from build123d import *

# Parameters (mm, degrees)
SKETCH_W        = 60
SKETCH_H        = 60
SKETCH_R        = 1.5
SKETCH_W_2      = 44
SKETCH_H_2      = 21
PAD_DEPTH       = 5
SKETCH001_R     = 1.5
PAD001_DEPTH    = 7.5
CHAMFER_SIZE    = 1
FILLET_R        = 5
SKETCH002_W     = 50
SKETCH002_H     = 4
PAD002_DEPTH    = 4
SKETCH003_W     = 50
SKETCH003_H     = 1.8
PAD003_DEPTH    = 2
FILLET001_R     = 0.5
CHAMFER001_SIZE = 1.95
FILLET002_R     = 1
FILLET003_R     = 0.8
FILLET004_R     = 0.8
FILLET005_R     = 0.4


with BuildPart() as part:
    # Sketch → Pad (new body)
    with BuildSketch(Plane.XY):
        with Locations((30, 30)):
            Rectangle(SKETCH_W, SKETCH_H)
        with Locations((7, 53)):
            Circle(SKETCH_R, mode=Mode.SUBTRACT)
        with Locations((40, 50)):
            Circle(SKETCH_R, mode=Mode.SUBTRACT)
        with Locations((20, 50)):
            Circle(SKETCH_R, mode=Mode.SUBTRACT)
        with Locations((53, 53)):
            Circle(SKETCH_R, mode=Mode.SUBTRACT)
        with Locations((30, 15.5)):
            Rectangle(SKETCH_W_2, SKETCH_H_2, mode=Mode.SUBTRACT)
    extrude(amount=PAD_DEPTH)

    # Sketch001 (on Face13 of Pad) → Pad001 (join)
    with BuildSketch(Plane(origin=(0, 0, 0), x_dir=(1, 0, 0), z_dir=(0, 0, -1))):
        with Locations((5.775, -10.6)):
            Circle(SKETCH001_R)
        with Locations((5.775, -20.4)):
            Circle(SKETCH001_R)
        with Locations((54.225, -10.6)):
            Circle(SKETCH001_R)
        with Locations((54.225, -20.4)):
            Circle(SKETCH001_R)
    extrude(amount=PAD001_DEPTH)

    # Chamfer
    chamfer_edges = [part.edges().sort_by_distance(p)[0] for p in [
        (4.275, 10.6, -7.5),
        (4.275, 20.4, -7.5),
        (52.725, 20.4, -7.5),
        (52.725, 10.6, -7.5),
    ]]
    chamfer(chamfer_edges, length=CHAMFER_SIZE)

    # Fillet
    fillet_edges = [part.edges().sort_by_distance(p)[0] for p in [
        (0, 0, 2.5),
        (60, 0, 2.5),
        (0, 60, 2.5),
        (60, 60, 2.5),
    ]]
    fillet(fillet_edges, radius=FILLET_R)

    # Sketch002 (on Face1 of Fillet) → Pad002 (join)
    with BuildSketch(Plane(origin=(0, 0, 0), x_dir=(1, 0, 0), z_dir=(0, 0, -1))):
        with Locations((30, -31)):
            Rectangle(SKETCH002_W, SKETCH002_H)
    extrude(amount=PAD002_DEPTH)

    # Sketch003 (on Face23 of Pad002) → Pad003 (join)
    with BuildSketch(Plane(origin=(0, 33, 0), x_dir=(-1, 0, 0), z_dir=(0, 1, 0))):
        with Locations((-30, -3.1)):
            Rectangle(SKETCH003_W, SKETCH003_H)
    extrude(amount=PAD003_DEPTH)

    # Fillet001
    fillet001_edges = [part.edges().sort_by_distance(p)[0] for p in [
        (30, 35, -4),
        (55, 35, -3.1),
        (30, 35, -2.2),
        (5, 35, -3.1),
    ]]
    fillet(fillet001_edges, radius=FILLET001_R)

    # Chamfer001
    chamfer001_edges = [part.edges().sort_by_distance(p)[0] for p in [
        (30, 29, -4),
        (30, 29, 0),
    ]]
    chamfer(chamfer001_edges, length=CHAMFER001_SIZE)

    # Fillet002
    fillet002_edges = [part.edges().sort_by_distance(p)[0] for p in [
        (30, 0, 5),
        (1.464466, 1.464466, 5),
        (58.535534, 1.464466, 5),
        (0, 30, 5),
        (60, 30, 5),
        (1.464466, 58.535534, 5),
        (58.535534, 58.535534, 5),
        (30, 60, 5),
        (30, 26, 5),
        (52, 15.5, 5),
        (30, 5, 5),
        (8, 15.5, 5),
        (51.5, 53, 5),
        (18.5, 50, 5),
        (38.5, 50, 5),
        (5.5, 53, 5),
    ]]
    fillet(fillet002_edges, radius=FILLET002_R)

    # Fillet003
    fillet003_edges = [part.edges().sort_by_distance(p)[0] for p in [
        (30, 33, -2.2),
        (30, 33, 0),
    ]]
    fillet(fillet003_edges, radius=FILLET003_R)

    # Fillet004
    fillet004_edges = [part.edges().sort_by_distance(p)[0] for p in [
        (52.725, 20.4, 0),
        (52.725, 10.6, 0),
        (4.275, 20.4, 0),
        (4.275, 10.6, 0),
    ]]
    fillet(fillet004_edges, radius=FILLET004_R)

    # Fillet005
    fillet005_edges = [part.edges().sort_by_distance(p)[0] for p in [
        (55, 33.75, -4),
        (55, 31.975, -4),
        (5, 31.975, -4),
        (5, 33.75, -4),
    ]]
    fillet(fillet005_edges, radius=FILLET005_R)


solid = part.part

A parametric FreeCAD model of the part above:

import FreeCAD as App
import Part
import Sketcher


def edges_at(feature, points):
    """Names of the edges that pass closest to the given points."""
    edges = feature.Shape.Edges
    near = lambda p: min(range(len(edges)), key=lambda i: edges[i].distToShape(Part.Vertex(*p))[0])
    return sorted({f"Edge{near(p) + 1}" for p in points})


def add_polygon(sketch, points):
    """Adds a closed chain of lines whose ends are joined by coincident constraints."""
    first, n = sketch.GeometryCount, len(points)
    for a, b in zip(points, points[1:] + points[:1]):
        sketch.addGeometry(Part.LineSegment(App.Vector(*a, 0), App.Vector(*b, 0)), False)
    for i in range(n):
        sketch.addConstraint(Sketcher.Constraint("Coincident", first + i, 2, first + (i + 1) % n, 1))

doc = App.newDocument("Part")
body = doc.addObject("PartDesign::Body", "Body")

# Sketch on XY plane
sketch1 = body.newObject("Sketcher::SketchObject", "Sketch")
sketch1.AttachmentSupport = (doc.getObject("XY_Plane"), [""])
sketch1.MapMode = "FlatFace"
add_polygon(sketch1, [(0, 60), (0, 0), (60, 0), (60, 60)])  # lines 0-3
add_polygon(sketch1, [(52, 5), (8, 5), (8, 26), (52, 26)])  # lines 4-7
sketch1.addGeometry(Part.Circle(App.Vector(7, 53, 0), App.Vector(0, 0, 1), 1.5), False)  # 8
sketch1.addGeometry(Part.Circle(App.Vector(20, 50, 0), App.Vector(0, 0, 1), 1.5), False)  # 9
sketch1.addGeometry(Part.Circle(App.Vector(40, 50, 0), App.Vector(0, 0, 1), 1.5), False)  # 10
sketch1.addGeometry(Part.Circle(App.Vector(53, 53, 0), App.Vector(0, 0, 1), 1.5), False)  # 11
sketch1.addConstraint(Sketcher.Constraint("Vertical", 0))
sketch1.addConstraint(Sketcher.Constraint("Horizontal", 1))
sketch1.addConstraint(Sketcher.Constraint("Vertical", 2))
sketch1.addConstraint(Sketcher.Constraint("Horizontal", 3))
sketch1.addConstraint(Sketcher.Constraint("Horizontal", 4))
sketch1.addConstraint(Sketcher.Constraint("Vertical", 5))
sketch1.addConstraint(Sketcher.Constraint("Horizontal", 6))
sketch1.addConstraint(Sketcher.Constraint("Vertical", 7))
sketch1.addConstraint(Sketcher.Constraint("Coincident", 0, 2, -1, 1))
sketch1.addConstraint(Sketcher.Constraint("Equal", 8, 9))
sketch1.addConstraint(Sketcher.Constraint("Equal", 9, 10))
sketch1.addConstraint(Sketcher.Constraint("Equal", 10, 11))
sketch1.addConstraint(Sketcher.Constraint("Horizontal", 9, 3, 10, 3))
sketch1.addConstraint(Sketcher.Constraint("Horizontal", 8, 3, 11, 3))
sketch1.addConstraint(Sketcher.Constraint("Equal", 3, 0))
sketch1.addConstraint(Sketcher.Constraint("Diameter", 8, 3.0))
sketch1.addConstraint(Sketcher.Constraint("DistanceX", 1, 1, 1, 2, 60.0))
sketch1.addConstraint(Sketcher.Constraint("DistanceX", 4, 2, 4, 1, 44.0))
sketch1.addConstraint(Sketcher.Constraint("DistanceY", 5, 1, 5, 2, 21.0))
sketch1.addConstraint(Sketcher.Constraint("DistanceX", -1, 1, 8, 3, 7.0))
sketch1.addConstraint(Sketcher.Constraint("DistanceY", -1, 1, 8, 3, 53.0))
sketch1.addConstraint(Sketcher.Constraint("DistanceX", -1, 1, 9, 3, 20.0))
sketch1.addConstraint(Sketcher.Constraint("DistanceY", -1, 1, 9, 3, 50.0))
sketch1.addConstraint(Sketcher.Constraint("DistanceX", -1, 1, 10, 3, 40.0))
sketch1.addConstraint(Sketcher.Constraint("DistanceX", -1, 1, 11, 3, 53.0))
sketch1.addConstraint(Sketcher.Constraint("DistanceX", -1, 1, 4, 2, 8.0))
sketch1.addConstraint(Sketcher.Constraint("DistanceY", -1, 1, 4, 2, 5.0))
pad1 = body.newObject("PartDesign::Pad", "Pad")
pad1.Profile = sketch1
pad1.Length = 5

# Sketch on XY plane
sketch2 = body.newObject("Sketcher::SketchObject", "Sketch001")
sketch2.AttachmentSupport = (doc.getObject("XY_Plane"), [""])
sketch2.MapMode = "FlatFace"
sketch2.addGeometry(Part.Circle(App.Vector(5.8, 10.6, 0), App.Vector(0, 0, 1), 1.5), False)
sketch2.addGeometry(Part.Circle(App.Vector(5.8, 20.4, 0), App.Vector(0, 0, 1), 1.5), False)
sketch2.addGeometry(Part.Circle(App.Vector(54.2, 10.6, 0), App.Vector(0, 0, 1), 1.5), False)
sketch2.addGeometry(Part.Circle(App.Vector(54.2, 20.4, 0), App.Vector(0, 0, 1), 1.5), False)
sketch2.addConstraint(Sketcher.Constraint("Equal", 0, 1))
sketch2.addConstraint(Sketcher.Constraint("Equal", 1, 2))
sketch2.addConstraint(Sketcher.Constraint("Equal", 2, 3))
sketch2.addConstraint(Sketcher.Constraint("Horizontal", 0, 3, 2, 3))
sketch2.addConstraint(Sketcher.Constraint("Horizontal", 1, 3, 3, 3))
sketch2.addConstraint(Sketcher.Constraint("Vertical", 0, 3, 1, 3))
sketch2.addConstraint(Sketcher.Constraint("Vertical", 2, 3, 3, 3))
sketch2.addConstraint(Sketcher.Constraint("Diameter", 0, 3.0))
sketch2.addConstraint(Sketcher.Constraint("DistanceY", -1, 1, 0, 3, 10.6))
sketch2.addConstraint(Sketcher.Constraint("DistanceY", -1, 1, 1, 3, 20.4))
sketch2.addConstraint(Sketcher.Constraint("DistanceX", 0, 3, 2, 3, 48.45))
sketch2.addConstraint(Sketcher.Constraint("DistanceX", -1, 1, 0, 3, 5.775))
pad2 = body.newObject("PartDesign::Pad", "Pad001")
pad2.Profile = sketch2
pad2.Length = 7.5
pad2.Reversed = True
doc.recompute()

chamfer = body.newObject("PartDesign::Chamfer", "Chamfer")
chamfer.Base = (pad2, edges_at(pad2, [
    (4.275, 10.6, -7.5),
    (4.275, 20.4, -7.5),
    (52.725, 20.4, -7.5),
    (52.725, 10.6, -7.5),
]))
chamfer.Size = 1
doc.recompute()

fillet = body.newObject("PartDesign::Fillet", "Fillet")
fillet.Base = (chamfer, edges_at(chamfer, [
    (0, 0, 2.5),
    (60, 0, 2.5),
    (0, 60, 2.5),
    (60, 60, 2.5),
]))
fillet.Radius = 5

# Sketch on XY plane
sketch3 = body.newObject("Sketcher::SketchObject", "Sketch002")
sketch3.AttachmentSupport = (doc.getObject("XY_Plane"), [""])
sketch3.MapMode = "FlatFace"
add_polygon(sketch3, [(5, 29), (5, 33), (55, 33), (55, 29)])  # lines 0-3
sketch3.addConstraint(Sketcher.Constraint("Vertical", 0))
sketch3.addConstraint(Sketcher.Constraint("Horizontal", 1))
sketch3.addConstraint(Sketcher.Constraint("Vertical", 2))
sketch3.addConstraint(Sketcher.Constraint("Horizontal", 3))
sketch3.addConstraint(Sketcher.Constraint("DistanceX", 1, 1, 1, 2, 50.0))
sketch3.addConstraint(Sketcher.Constraint("DistanceY", 0, 1, 0, 2, 4.0))
sketch3.addConstraint(Sketcher.Constraint("DistanceX", -1, 1, 0, 2, 5.0))
sketch3.addConstraint(Sketcher.Constraint("DistanceY", -1, 1, 0, 2, 33.0))
pad3 = body.newObject("PartDesign::Pad", "Pad002")
pad3.Profile = sketch3
pad3.Length = 4
pad3.Reversed = True

# Sketch on XZ plane
sketch4 = body.newObject("Sketcher::SketchObject", "Sketch003")
sketch4.AttachmentSupport = (doc.getObject("XZ_Plane"), [""])
sketch4.MapMode = "FlatFace"
sketch4.AttachmentOffset = App.Placement(App.Vector(0, 0, -33), App.Rotation())
add_polygon(sketch4, [(55, -2.2), (55, -4), (5, -4), (5, -2.2)])  # lines 0-3
sketch4.addConstraint(Sketcher.Constraint("Vertical", 0))
sketch4.addConstraint(Sketcher.Constraint("Horizontal", 1))
sketch4.addConstraint(Sketcher.Constraint("Vertical", 2))
sketch4.addConstraint(Sketcher.Constraint("Horizontal", 3))
sketch4.addConstraint(Sketcher.Constraint("DistanceX", 1, 2, 1, 1, 50.0))
sketch4.addConstraint(Sketcher.Constraint("DistanceY", 0, 2, 0, 1, 1.8))
sketch4.addConstraint(Sketcher.Constraint("DistanceX", -1, 1, 0, 2, 55.0))
sketch4.addConstraint(Sketcher.Constraint("DistanceY", 0, 2, -1, 1, 4.0))
pad4 = body.newObject("PartDesign::Pad", "Pad003")
pad4.Profile = sketch4
pad4.Length = 2
pad4.Reversed = True
doc.recompute()

fillet2 = body.newObject("PartDesign::Fillet", "Fillet001")
fillet2.Base = (pad4, edges_at(pad4, [
    (30, 35, -4),
    (55, 35, -3.1),
    (30, 35, -2.2),
    (5, 35, -3.1),
]))
fillet2.Radius = 0.5
doc.recompute()

chamfer2 = body.newObject("PartDesign::Chamfer", "Chamfer001")
chamfer2.Base = (fillet2, edges_at(fillet2, [(30, 29, -4), (30, 29, 0)]))
chamfer2.Size = 1.95
doc.recompute()

fillet3 = body.newObject("PartDesign::Fillet", "Fillet002")
fillet3.Base = (chamfer2, edges_at(chamfer2, [
    (30, 0, 5),
    (1.464, 1.464, 5),
    (58.536, 1.464, 5),
    (0, 30, 5),
    (60, 30, 5),
    (1.464, 58.536, 5),
    (58.536, 58.536, 5),
    (30, 60, 5),
    (30, 26, 5),
    (52, 15.5, 5),
    (30, 5, 5),
    (8, 15.5, 5),
    (51.5, 53, 5),
    (18.5, 50, 5),
    (38.5, 50, 5),
    (5.5, 53, 5),
]))
fillet3.Radius = 1
doc.recompute()

fillet4 = body.newObject("PartDesign::Fillet", "Fillet003")
fillet4.Base = (fillet3, edges_at(fillet3, [(30, 33, -2.2), (30, 33, 0)]))
fillet4.Radius = 0.8
doc.recompute()

fillet5 = body.newObject("PartDesign::Fillet", "Fillet004")
fillet5.Base = (fillet4, edges_at(fillet4, [
    (52.725, 20.4, 0),
    (52.725, 10.6, 0),
    (4.275, 20.4, 0),
    (4.275, 10.6, 0),
]))
fillet5.Radius = 0.8
doc.recompute()

fillet6 = body.newObject("PartDesign::Fillet", "Fillet005")
fillet6.Base = (fillet5, edges_at(fillet5, [
    (55, 32.725, -4),
    (55, 32.725, -4),
    (5, 32.725, -4),
    (5, 32.725, -4),
]))
fillet6.Radius = 0.4

doc.recompute()
